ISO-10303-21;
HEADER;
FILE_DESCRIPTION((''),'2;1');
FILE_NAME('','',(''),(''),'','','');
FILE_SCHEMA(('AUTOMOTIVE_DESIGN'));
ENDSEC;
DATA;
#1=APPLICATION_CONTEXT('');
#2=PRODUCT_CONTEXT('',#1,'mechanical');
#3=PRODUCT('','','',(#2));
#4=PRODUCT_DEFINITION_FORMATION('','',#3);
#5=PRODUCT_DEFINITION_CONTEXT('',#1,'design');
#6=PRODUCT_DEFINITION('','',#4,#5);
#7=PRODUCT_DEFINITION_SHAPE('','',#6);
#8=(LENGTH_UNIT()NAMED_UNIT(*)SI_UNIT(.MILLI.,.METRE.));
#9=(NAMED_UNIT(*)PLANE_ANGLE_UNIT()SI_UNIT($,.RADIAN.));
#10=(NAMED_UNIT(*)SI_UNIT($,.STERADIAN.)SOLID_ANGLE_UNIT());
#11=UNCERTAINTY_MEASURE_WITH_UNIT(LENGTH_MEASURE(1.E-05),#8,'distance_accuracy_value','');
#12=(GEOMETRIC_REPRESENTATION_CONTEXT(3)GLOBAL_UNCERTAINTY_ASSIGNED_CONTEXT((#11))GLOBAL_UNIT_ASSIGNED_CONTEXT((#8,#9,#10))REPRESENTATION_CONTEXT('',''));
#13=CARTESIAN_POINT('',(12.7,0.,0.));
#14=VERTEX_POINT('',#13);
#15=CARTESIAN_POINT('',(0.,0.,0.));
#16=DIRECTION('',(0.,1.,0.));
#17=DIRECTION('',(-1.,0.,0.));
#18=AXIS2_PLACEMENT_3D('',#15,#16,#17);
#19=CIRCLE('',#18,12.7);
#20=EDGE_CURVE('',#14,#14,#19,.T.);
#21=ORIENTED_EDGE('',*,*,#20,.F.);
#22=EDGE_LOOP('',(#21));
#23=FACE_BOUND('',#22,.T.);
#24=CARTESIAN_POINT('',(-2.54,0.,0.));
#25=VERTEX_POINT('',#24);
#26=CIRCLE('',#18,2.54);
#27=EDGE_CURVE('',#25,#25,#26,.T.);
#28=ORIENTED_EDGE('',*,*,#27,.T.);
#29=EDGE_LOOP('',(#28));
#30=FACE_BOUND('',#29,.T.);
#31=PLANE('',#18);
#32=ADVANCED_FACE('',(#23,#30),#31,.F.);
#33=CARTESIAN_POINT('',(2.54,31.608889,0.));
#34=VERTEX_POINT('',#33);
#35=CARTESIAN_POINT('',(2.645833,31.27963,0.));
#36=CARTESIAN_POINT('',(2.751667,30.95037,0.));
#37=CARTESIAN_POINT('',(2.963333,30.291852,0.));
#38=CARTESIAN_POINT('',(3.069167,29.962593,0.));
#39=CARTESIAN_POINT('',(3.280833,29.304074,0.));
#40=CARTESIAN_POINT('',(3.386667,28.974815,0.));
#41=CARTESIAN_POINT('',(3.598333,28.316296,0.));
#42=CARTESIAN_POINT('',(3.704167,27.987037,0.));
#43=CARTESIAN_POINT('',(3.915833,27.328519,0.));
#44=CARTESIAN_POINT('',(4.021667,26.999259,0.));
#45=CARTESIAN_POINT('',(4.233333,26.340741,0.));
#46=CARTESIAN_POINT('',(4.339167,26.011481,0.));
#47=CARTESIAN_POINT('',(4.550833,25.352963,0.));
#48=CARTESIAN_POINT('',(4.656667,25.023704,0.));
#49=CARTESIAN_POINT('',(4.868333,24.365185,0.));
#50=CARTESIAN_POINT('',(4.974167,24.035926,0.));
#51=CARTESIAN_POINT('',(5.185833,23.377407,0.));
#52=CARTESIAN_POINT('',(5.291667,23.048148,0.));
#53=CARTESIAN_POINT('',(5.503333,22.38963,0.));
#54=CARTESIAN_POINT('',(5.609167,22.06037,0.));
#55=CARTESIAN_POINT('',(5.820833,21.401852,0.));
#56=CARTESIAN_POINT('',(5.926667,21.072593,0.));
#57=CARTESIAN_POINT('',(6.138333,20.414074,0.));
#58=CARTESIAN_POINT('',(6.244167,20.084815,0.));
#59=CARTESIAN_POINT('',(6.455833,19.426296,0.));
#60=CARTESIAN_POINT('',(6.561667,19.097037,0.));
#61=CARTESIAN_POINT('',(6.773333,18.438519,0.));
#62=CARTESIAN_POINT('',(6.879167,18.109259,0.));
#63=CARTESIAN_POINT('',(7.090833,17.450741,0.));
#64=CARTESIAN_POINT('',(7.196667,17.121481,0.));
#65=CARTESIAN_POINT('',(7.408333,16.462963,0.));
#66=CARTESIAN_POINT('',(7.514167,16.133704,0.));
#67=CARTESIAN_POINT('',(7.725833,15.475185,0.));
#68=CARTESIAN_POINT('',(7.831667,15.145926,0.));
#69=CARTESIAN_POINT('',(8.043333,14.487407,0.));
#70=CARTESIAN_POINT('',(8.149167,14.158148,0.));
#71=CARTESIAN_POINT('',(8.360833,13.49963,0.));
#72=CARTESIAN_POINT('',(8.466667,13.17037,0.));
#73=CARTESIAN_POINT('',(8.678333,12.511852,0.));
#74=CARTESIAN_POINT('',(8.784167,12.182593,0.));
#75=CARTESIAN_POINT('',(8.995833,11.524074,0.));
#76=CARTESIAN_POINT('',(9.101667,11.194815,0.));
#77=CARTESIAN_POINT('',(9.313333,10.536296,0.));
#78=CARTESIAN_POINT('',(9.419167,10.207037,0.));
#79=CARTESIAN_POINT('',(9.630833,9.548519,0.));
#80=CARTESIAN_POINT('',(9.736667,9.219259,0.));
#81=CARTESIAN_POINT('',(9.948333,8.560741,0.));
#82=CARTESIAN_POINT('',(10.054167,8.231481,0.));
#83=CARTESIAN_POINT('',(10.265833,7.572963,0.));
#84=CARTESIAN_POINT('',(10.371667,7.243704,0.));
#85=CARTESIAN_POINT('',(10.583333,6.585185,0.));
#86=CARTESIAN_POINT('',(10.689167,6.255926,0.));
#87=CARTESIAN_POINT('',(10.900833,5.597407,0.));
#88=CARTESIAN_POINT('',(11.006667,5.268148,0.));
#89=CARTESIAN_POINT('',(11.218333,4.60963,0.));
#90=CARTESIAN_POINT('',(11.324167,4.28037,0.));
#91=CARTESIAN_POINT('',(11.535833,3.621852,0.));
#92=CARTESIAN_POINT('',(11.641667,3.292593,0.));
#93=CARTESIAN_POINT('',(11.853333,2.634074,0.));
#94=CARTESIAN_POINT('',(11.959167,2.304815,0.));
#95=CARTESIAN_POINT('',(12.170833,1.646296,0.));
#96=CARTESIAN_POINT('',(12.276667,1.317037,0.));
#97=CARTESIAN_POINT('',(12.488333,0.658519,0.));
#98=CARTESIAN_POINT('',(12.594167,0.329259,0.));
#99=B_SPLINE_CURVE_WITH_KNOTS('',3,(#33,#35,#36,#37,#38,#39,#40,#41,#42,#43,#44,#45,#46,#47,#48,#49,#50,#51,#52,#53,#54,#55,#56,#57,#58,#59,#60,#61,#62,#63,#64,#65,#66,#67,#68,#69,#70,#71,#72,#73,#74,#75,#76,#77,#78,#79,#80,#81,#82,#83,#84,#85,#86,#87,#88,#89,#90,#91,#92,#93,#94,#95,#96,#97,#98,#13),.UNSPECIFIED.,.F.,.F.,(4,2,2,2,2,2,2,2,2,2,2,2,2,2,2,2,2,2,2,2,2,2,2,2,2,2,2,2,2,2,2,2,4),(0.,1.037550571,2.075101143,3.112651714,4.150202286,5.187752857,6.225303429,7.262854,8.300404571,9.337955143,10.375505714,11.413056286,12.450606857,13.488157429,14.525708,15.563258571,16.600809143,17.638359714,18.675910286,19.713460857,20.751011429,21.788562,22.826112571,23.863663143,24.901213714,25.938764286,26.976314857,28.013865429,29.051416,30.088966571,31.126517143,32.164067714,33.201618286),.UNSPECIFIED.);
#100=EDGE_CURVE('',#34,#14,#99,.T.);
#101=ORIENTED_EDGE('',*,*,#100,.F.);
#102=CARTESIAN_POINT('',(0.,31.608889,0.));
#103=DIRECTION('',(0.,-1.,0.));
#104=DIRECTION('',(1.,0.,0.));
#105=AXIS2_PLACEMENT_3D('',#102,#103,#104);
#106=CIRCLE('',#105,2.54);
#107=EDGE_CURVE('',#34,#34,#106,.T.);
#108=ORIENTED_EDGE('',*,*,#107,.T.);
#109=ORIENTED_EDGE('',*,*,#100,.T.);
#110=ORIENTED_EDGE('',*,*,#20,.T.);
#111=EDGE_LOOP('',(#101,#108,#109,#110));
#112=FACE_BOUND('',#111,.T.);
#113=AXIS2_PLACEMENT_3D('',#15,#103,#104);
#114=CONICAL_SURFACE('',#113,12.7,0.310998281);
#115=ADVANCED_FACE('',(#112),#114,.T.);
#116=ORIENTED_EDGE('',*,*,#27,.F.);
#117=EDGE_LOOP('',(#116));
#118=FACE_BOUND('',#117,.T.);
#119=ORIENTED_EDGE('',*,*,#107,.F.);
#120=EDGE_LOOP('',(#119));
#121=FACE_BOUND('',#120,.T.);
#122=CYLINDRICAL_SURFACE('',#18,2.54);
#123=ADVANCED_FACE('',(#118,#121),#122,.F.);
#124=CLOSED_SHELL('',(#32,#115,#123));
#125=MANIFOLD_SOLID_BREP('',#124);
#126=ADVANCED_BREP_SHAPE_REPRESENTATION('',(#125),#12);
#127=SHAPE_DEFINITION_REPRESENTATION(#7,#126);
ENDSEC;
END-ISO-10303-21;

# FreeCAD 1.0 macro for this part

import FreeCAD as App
import Part
import Sketcher
Q = App.Units.Quantity


def add_polygon(sketch, points):
    """Adds a closed chain of lines whose ends are joined by coincident constraints."""
    first, n = sketch.GeometryCount, len(points)
    for a, b in zip(points, points[1:] + points[:1]):
        sketch.addGeometry(Part.LineSegment(App.Vector(*a, 0), App.Vector(*b, 0)), False)
    for i in range(n):
        sketch.addConstraint(Sketcher.Constraint("Coincident", first + i, 2, first + (i + 1) % n, 1))

doc = App.newDocument("Part")
params = doc.addObject("Spreadsheet::Sheet", "Params")
for row, (alias, value) in enumerate([
    ("sketch1_width", "0.5 in"),
    ("sketch1_height", "1.4 in"),
    ("sketch1_width2", "0.05 in"),
    ("revolution_angle", "360 deg"),
    ("sketch2_diameter", "0.2 in"),
], start=1):
    params.set(f"A{row}", alias)
    params.set(f"B{row}", "=" + value)
    params.setAlias(f"B{row}", alias)

body = doc.addObject("PartDesign::Body", "Body")

# Sketch on XY plane
sketch1 = body.newObject("Sketcher::SketchObject", "Sketch")
sketch1.AttachmentSupport = (doc.getObject("XY_Plane"), [""])
sketch1.MapMode = "FlatFace"
add_polygon(sketch1, [(0, 0), (12.7, 0), (1.27, 35.56), (0, 35.56)])  # lines 0-3
sketch1.addConstraint([
    Sketcher.Constraint("Horizontal", 0),
    Sketcher.Constraint("Horizontal", 2),
    Sketcher.Constraint("Vertical", 3),
    Sketcher.Constraint("Coincident", 3, 2, -1, 1),
    Sketcher.Constraint("DistanceX", 0, 1, 0, 2, Q("0.5 in")),
    Sketcher.Constraint("DistanceY", 3, 2, 3, 1, Q("1.4 in")),
    Sketcher.Constraint("DistanceX", 2, 2, 2, 1, Q("0.05 in")),
])
sketch1.setExpression("Constraints[8]", "Params.sketch1_width")
sketch1.setExpression("Constraints[9]", "Params.sketch1_height")
sketch1.setExpression("Constraints[10]", "Params.sketch1_width2")
revolution = body.newObject("PartDesign::Revolution", "Revolution")
revolution.Profile = sketch1
revolution.ReferenceAxis = (sketch1, ["V_Axis"])
revolution.setExpression("Angle", "Params.revolution_angle")

# Sketch on XZ plane
sketch2 = body.newObject("Sketcher::SketchObject", "Sketch001")
sketch2.AttachmentSupport = (doc.getObject("XZ_Plane"), [""])
sketch2.MapMode = "FlatFace"
sketch2.AttachmentOffset = App.Placement(App.Vector(0, 0, -1.4 * 25.4), App.Rotation())
sketch2.addGeometry(Part.Circle(App.Vector(0, 0, 0), App.Vector(0, 0, 1), 2.54), False)
sketch2.addConstraint([
    Sketcher.Constraint("Coincident", 0, 3, -1, 1),
    Sketcher.Constraint("Diameter", 0, Q("0.2 in")),
])
sketch2.setExpression("Constraints[1]", "Params.sketch2_diameter")
pocket1 = body.newObject("PartDesign::Pocket", "Pocket")
pocket1.Profile = sketch2
pocket1.Type = "ThroughAll"
pocket1.Reversed = True

doc.recompute()
